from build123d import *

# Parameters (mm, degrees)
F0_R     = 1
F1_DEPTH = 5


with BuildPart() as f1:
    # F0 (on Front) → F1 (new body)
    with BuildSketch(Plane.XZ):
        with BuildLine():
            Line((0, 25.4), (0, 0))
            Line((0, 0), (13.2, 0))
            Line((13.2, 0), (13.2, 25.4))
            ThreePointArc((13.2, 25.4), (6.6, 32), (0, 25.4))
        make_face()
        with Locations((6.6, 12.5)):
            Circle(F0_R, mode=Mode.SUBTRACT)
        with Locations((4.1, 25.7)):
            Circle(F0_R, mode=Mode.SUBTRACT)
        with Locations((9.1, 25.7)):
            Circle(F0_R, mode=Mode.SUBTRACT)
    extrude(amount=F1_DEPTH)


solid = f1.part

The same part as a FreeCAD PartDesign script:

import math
import FreeCAD as App
import Part
import Sketcher

V = App.Vector
Q = App.Units.Quantity

doc = App.newDocument("Part")
params = doc.addObject("Spreadsheet::Sheet", "Params")
for row, (alias, value) in enumerate([
    ("sketch1_diameter", "2 mm"),
    ("sketch1_radius", "6.6 mm"),
    ("sketch1_height", "25.4 mm"),
    ("pad1_length", "5 mm"),
], start=1):
    params.set(f"A{row}", alias)
    params.set(f"B{row}", "=" + value)
    params.setAlias(f"B{row}", alias)

body = doc.addObject("PartDesign::Body", "Body")

# Sketch on XZ plane
sketch1 = body.newObject("Sketcher::SketchObject", "Sketch")
sketch1.AttachmentSupport = (doc.getObject("XZ_Plane"), [""])
sketch1.MapMode = "FlatFace"
sketch1.addGeometry([
    Part.LineSegment(V(0, 25.4, 0), V(0, 0, 0)),  # 0
    Part.LineSegment(V(0, 0, 0), V(13.2, 0, 0)),  # 1
    Part.LineSegment(V(13.2, 0, 0), V(13.2, 25.4, 0)),  # 2
    Part.ArcOfCircle(Part.Circle(V(6.6, 25.4, 0), V(0, 0, 1), 6.6), math.radians(0), math.radians(180)),  # 3
    Part.Circle(V(6.6, 12.5, 0), V(0, 0, 1), 1),  # 4
    Part.Circle(V(4.1, 25.7, 0), V(0, 0, 1), 1),  # 5
    Part.Circle(V(9.1, 25.7, 0), V(0, 0, 1), 1),  # 6
], False)
sketch1.addConstraint([
    Sketcher.Constraint("Coincident", 0, 2, 1, 1),
    Sketcher.Constraint("Coincident", 1, 2, 2, 1),
    Sketcher.Constraint("Tangent", 2, 2, 3, 1),
    Sketcher.Constraint("Tangent", 3, 2, 0, 1),
    Sketcher.Constraint("Vertical", 0),
    Sketcher.Constraint("Horizontal", 1),
    Sketcher.Constraint("Vertical", 2),
    Sketcher.Constraint("Coincident", 0, 2, -1, 1),
    Sketcher.Constraint("Equal", 4, 5),
    Sketcher.Constraint("Equal", 5, 6),
    Sketcher.Constraint("Horizontal", 5, 3, 6, 3),
    Sketcher.Constraint("Vertical", 3, 3, 4, 3),
    Sketcher.Constraint("Diameter", 4, Q("2 mm")),
    Sketcher.Constraint("Radius", 3, Q("6.6 mm")),
    Sketcher.Constraint("DistanceY", 0, 2, 0, 1, Q("25.4 mm")),
    Sketcher.Constraint("DistanceX", 5, 3, 6, 3, Q("5 mm")),
    Sketcher.Constraint("DistanceY", -1, 1, 4, 3, Q("12.5 mm")),
    Sketcher.Constraint("DistanceX", -1, 1, 5, 3, Q("4.1 mm")),
    Sketcher.Constraint("DistanceY", -1, 1, 5, 3, Q("25.7 mm")),
])
sketch1.setExpression("Constraints[12]", "Params.sketch1_diameter")
sketch1.setExpression("Constraints[13]", "Params.sketch1_radius")
sketch1.setExpression("Constraints[14]", "Params.sketch1_height")
pad1 = body.newObject("PartDesign::Pad", "Pad")
pad1.Profile = sketch1
pad1.setExpression("Length", "Params.pad1_length")

doc.recompute()
